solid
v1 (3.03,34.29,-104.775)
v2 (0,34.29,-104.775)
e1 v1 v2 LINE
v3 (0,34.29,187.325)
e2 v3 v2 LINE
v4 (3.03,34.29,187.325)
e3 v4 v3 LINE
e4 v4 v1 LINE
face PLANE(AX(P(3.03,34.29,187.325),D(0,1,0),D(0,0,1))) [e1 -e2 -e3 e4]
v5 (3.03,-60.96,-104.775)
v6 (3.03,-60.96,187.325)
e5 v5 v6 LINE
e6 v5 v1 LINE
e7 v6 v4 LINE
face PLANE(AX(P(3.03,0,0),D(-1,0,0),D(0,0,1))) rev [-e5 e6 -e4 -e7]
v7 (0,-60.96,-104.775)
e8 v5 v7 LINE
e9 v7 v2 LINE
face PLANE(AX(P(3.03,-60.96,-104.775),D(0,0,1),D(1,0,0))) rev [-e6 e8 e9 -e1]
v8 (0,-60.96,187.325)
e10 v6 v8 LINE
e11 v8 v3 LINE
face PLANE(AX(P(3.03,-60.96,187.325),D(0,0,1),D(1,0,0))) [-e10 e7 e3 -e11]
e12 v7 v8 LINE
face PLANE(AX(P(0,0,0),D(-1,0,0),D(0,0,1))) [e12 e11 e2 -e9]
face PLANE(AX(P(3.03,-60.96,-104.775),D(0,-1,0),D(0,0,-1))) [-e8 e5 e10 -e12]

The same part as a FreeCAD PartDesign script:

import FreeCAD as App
import Part
import Sketcher

V = App.Vector
Q = App.Units.Quantity

doc = App.newDocument("Part")
body = doc.addObject("PartDesign::Body", "Body")

sketch1 = body.newObject("Sketcher::SketchObject", "Sketch")
sketch1.AttachmentSupport = (doc.getObject("YZ_Plane"), [""])
sketch1.MapMode = "FlatFace"
sketch1.addGeometry([
    Part.LineSegment(V(34, 187, 0), V(-61, 187, 0)),
    Part.LineSegment(V(-61, 187, 0), V(-61, -105, 0)),
    Part.LineSegment(V(-61, -105, 0), V(34, -105, 0)),
    Part.LineSegment(V(34, -105, 0), V(34, 187, 0)),
], False)
sketch1.addConstraint([
    Sketcher.Constraint("Coincident", 0, 2, 1, 1),
    Sketcher.Constraint("Coincident", 1, 2, 2, 1),
    Sketcher.Constraint("Coincident", 2, 2, 3, 1),
    Sketcher.Constraint("Coincident", 3, 2, 0, 1),
    Sketcher.Constraint("Horizontal", 0),
    Sketcher.Constraint("Vertical", 1),
    Sketcher.Constraint("Horizontal", 2),
    Sketcher.Constraint("Vertical", 3),
    Sketcher.Constraint("DistanceY", 1, 2, 1, 1, Q("11.5 in")),
    Sketcher.Constraint("DistanceX", 0, 2, 0, 1, Q("3.75 in")),
    Sketcher.Constraint("DistanceX", 0, 2, -1, 1, Q("2.4 in")),
    Sketcher.Constraint("DistanceY", -1, 1, 0, 2, Q("7.375 in")),
])
pad1 = body.newObject("PartDesign::Pad", "Pad")
pad1.Profile = sketch1
pad1.Length = 3.03

doc.recompute()
